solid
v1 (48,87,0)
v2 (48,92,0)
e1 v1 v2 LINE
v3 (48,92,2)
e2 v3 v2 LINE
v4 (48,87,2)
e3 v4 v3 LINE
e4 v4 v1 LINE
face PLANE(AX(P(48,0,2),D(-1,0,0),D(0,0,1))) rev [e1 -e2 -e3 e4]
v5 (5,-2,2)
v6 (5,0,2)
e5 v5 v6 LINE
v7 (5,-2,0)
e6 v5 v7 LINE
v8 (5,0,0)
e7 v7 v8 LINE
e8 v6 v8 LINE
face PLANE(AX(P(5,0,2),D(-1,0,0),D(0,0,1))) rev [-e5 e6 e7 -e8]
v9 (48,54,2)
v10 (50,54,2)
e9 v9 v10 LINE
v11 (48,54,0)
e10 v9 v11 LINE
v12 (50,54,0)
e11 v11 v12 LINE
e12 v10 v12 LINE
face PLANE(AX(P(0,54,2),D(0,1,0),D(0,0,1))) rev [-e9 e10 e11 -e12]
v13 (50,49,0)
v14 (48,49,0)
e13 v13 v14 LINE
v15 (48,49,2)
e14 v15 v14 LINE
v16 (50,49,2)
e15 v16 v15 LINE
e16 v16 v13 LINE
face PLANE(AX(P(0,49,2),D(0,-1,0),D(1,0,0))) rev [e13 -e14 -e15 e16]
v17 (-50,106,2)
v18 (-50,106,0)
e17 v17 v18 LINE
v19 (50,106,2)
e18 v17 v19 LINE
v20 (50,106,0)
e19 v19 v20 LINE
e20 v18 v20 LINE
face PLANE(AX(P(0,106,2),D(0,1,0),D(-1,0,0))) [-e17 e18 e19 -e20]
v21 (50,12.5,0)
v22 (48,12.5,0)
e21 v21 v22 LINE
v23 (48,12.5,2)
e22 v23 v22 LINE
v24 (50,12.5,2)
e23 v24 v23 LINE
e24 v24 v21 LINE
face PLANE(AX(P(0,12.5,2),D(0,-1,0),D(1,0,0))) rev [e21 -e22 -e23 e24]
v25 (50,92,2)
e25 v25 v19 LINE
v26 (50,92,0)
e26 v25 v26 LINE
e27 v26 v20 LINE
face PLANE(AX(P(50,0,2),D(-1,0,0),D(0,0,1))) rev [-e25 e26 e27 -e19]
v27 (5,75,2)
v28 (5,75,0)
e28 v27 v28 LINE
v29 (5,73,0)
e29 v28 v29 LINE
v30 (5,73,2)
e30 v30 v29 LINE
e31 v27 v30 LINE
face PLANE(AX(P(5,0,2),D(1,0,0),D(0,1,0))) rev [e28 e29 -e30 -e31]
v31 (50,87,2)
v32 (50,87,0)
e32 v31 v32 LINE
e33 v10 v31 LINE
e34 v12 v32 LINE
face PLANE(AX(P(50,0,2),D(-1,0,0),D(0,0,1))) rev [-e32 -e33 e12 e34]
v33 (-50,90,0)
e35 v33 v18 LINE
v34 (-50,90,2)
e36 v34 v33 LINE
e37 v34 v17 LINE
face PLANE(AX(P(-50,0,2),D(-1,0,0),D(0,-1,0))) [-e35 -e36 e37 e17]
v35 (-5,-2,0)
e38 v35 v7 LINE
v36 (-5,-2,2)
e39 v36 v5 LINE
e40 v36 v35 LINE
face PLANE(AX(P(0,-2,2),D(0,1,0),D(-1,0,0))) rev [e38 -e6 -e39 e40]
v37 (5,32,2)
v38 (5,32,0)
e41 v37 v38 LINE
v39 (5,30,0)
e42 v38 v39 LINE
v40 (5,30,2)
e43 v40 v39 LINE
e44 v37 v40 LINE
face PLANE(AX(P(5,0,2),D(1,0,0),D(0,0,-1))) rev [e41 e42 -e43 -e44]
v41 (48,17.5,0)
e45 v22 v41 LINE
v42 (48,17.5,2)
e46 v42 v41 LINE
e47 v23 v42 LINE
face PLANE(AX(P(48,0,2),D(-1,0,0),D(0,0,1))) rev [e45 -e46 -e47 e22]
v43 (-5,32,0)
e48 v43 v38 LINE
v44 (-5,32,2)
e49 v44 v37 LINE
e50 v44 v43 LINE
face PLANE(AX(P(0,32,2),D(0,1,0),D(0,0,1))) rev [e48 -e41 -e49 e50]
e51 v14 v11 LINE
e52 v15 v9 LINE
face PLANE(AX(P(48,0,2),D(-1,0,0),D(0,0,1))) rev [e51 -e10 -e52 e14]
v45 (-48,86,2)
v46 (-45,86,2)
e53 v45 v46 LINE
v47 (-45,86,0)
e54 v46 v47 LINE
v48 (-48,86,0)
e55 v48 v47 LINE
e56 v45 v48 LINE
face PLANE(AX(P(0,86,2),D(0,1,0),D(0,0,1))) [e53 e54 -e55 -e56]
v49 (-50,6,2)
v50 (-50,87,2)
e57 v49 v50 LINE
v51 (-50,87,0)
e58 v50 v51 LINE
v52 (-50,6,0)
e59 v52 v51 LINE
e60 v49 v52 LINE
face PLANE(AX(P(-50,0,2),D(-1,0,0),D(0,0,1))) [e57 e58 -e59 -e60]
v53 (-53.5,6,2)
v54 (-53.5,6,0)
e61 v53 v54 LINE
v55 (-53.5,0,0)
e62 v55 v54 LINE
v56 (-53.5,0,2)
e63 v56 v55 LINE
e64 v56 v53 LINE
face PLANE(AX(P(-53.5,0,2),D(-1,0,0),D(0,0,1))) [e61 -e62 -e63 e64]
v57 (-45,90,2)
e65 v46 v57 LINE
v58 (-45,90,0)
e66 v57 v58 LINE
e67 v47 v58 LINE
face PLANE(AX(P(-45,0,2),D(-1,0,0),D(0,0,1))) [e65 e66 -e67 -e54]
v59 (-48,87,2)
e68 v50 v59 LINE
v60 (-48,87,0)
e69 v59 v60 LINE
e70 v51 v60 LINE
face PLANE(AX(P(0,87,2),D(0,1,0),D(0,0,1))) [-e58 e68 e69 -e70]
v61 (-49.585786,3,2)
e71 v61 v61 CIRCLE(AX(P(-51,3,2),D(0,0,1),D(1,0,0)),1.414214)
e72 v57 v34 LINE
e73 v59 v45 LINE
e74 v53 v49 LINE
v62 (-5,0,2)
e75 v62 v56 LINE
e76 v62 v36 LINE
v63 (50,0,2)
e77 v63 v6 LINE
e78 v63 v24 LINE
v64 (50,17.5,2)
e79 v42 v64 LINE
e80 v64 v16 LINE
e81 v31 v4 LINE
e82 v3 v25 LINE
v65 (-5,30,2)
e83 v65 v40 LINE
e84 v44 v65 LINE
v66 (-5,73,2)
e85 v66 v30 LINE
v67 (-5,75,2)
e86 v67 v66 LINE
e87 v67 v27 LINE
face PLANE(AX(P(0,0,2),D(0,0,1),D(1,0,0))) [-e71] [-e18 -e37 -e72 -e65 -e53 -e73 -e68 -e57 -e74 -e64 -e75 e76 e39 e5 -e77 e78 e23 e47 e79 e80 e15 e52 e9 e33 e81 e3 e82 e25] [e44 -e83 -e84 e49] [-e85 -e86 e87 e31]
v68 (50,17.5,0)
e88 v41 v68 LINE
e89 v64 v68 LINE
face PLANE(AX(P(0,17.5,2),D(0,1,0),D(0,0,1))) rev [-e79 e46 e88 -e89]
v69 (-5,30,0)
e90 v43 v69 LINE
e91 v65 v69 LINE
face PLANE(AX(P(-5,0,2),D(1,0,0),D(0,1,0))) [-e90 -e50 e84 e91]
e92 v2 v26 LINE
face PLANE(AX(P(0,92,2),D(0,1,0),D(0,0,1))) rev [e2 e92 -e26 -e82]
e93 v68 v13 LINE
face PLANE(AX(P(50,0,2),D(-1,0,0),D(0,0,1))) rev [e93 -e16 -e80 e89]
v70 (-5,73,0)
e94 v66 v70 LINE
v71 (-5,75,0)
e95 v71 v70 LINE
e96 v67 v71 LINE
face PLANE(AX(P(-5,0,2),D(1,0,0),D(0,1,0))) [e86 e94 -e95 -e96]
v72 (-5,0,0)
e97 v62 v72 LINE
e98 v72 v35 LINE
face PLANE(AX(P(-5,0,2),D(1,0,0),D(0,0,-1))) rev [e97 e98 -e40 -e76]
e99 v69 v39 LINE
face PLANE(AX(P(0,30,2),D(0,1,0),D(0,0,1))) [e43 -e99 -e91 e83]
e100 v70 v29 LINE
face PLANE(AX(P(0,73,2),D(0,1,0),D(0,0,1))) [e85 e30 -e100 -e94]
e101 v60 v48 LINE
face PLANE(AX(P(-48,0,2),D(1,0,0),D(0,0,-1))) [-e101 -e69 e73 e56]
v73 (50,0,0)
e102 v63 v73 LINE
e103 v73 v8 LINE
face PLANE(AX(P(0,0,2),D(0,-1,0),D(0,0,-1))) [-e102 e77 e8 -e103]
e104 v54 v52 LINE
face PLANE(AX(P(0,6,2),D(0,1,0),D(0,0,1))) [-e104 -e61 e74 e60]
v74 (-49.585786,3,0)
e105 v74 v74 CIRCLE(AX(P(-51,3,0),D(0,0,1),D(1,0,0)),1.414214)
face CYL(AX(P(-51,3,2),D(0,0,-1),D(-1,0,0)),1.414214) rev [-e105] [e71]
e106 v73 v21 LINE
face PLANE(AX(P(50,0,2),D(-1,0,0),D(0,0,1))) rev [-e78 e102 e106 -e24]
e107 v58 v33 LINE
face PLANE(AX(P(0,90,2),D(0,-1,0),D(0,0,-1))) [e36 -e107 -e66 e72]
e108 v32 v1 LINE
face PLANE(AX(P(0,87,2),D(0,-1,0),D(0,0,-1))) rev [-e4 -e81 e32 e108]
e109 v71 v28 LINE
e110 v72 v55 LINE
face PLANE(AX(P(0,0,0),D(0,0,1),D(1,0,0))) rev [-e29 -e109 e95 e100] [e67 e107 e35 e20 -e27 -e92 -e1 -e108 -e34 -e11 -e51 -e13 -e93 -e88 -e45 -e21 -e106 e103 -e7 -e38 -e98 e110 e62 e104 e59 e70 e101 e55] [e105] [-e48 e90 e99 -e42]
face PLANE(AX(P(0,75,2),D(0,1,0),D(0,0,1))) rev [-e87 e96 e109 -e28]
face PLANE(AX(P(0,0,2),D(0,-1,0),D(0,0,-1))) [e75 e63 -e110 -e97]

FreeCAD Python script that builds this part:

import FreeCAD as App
import Part
import Sketcher

doc = App.newDocument("Part")
body = doc.addObject("PartDesign::Body", "Body")

# Sketch on XY plane
sketch1 = doc.addObject("Sketcher::SketchObject", "Sketch")
body.addObject(sketch1)
sketch1.AttachmentSupport = (doc.XY_Plane, [""])
sketch1.MapMode = "FlatFace"
sketch1.addGeometry(Part.LineSegment(App.Vector(-53.5, 0, 0), App.Vector(-5, 0, 0)), False)
sketch1.addGeometry(Part.LineSegment(App.Vector(-5, 0, 0), App.Vector(-5, -2, 0)), False)
sketch1.addGeometry(Part.LineSegment(App.Vector(-5, -2, 0), App.Vector(5, -2, 0)), False)
sketch1.addGeometry(Part.LineSegment(App.Vector(5, -2, 0), App.Vector(5, 0, 0)), False)
sketch1.addGeometry(Part.LineSegment(App.Vector(5, 0, 0), App.Vector(50, 0, 0)), False)
sketch1.addGeometry(Part.LineSegment(App.Vector(50, 0, 0), App.Vector(50, 12.5, 0)), False)
sketch1.addGeometry(Part.LineSegment(App.Vector(50, 12.5, 0), App.Vector(48, 12.5, 0)), False)
sketch1.addGeometry(Part.LineSegment(App.Vector(48, 12.5, 0), App.Vector(48, 17.5, 0)), False)
sketch1.addGeometry(Part.LineSegment(App.Vector(48, 17.5, 0), App.Vector(50, 17.5, 0)), False)
sketch1.addGeometry(Part.LineSegment(App.Vector(50, 17.5, 0), App.Vector(50, 49, 0)), False)
sketch1.addGeometry(Part.LineSegment(App.Vector(50, 49, 0), App.Vector(48, 49, 0)), False)
sketch1.addGeometry(Part.LineSegment(App.Vector(48, 49, 0), App.Vector(48, 54, 0)), False)
sketch1.addGeometry(Part.LineSegment(App.Vector(48, 54, 0), App.Vector(50, 54, 0)), False)
sketch1.addGeometry(Part.LineSegment(App.Vector(50, 54, 0), App.Vector(50, 87, 0)), False)
sketch1.addGeometry(Part.LineSegment(App.Vector(50, 87, 0), App.Vector(48, 87, 0)), False)
sketch1.addGeometry(Part.LineSegment(App.Vector(48, 87, 0), App.Vector(48, 92, 0)), False)
sketch1.addGeometry(Part.LineSegment(App.Vector(48, 92, 0), App.Vector(50, 92, 0)), False)
sketch1.addGeometry(Part.LineSegment(App.Vector(50, 92, 0), App.Vector(50, 106, 0)), False)
sketch1.addGeometry(Part.LineSegment(App.Vector(50, 106, 0), App.Vector(-50, 106, 0)), False)
sketch1.addGeometry(Part.LineSegment(App.Vector(-50, 106, 0), App.Vector(-50, 90, 0)), False)
sketch1.addGeometry(Part.LineSegment(App.Vector(-50, 90, 0), App.Vector(-45, 90, 0)), False)
sketch1.addGeometry(Part.LineSegment(App.Vector(-45, 90, 0), App.Vector(-45, 86, 0)), False)
sketch1.addGeometry(Part.LineSegment(App.Vector(-45, 86, 0), App.Vector(-48, 86, 0)), False)
sketch1.addGeometry(Part.LineSegment(App.Vector(-48, 86, 0), App.Vector(-48, 87, 0)), False)
sketch1.addGeometry(Part.LineSegment(App.Vector(-48, 87, 0), App.Vector(-50, 87, 0)), False)
sketch1.addGeometry(Part.LineSegment(App.Vector(-50, 87, 0), App.Vector(-50, 6, 0)), False)
sketch1.addGeometry(Part.LineSegment(App.Vector(-50, 6, 0), App.Vector(-53.5, 6, 0)), False)
sketch1.addGeometry(Part.LineSegment(App.Vector(-53.5, 6, 0), App.Vector(-53.5, 0, 0)), False)
sketch1.addGeometry(Part.Circle(App.Vector(-51, 3, 0), App.Vector(0, 0, 1), 1.4), False)
sketch1.addGeometry(Part.LineSegment(App.Vector(5, 30, 0), App.Vector(-5, 30, 0)), False)
sketch1.addGeometry(Part.LineSegment(App.Vector(-5, 30, 0), App.Vector(-5, 32, 0)), False)
sketch1.addGeometry(Part.LineSegment(App.Vector(-5, 32, 0), App.Vector(5, 32, 0)), False)
sketch1.addGeometry(Part.LineSegment(App.Vector(5, 32, 0), App.Vector(5, 30, 0)), False)
sketch1.addGeometry(Part.LineSegment(App.Vector(5, 73, 0), App.Vector(-5, 73, 0)), False)
sketch1.addGeometry(Part.LineSegment(App.Vector(-5, 73, 0), App.Vector(-5, 75, 0)), False)
sketch1.addGeometry(Part.LineSegment(App.Vector(-5, 75, 0), App.Vector(5, 75, 0)), False)
sketch1.addGeometry(Part.LineSegment(App.Vector(5, 75, 0), App.Vector(5, 73, 0)), False)
sketch1.addConstraint(Sketcher.Constraint("Coincident", 0, 2, 1, 1))
sketch1.addConstraint(Sketcher.Constraint("Coincident", 1, 2, 2, 1))
sketch1.addConstraint(Sketcher.Constraint("Coincident", 2, 2, 3, 1))
sketch1.addConstraint(Sketcher.Constraint("Coincident", 3, 2, 4, 1))
sketch1.addConstraint(Sketcher.Constraint("Coincident", 4, 2, 5, 1))
sketch1.addConstraint(Sketcher.Constraint("Coincident", 5, 2, 6, 1))
sketch1.addConstraint(Sketcher.Constraint("Coincident", 6, 2, 7, 1))
sketch1.addConstraint(Sketcher.Constraint("Coincident", 7, 2, 8, 1))
sketch1.addConstraint(Sketcher.Constraint("Coincident", 8, 2, 9, 1))
sketch1.addConstraint(Sketcher.Constraint("Coincident", 9, 2, 10, 1))
sketch1.addConstraint(Sketcher.Constraint("Coincident", 10, 2, 11, 1))
sketch1.addConstraint(Sketcher.Constraint("Coincident", 11, 2, 12, 1))
sketch1.addConstraint(Sketcher.Constraint("Coincident", 12, 2, 13, 1))
sketch1.addConstraint(Sketcher.Constraint("Coincident", 13, 2, 14, 1))
sketch1.addConstraint(Sketcher.Constraint("Coincident", 14, 2, 15, 1))
sketch1.addConstraint(Sketcher.Constraint("Coincident", 15, 2, 16, 1))
sketch1.addConstraint(Sketcher.Constraint("Coincident", 16, 2, 17, 1))
sketch1.addConstraint(Sketcher.Constraint("Coincident", 17, 2, 18, 1))
sketch1.addConstraint(Sketcher.Constraint("Coincident", 18, 2, 19, 1))
sketch1.addConstraint(Sketcher.Constraint("Coincident", 19, 2, 20, 1))
sketch1.addConstraint(Sketcher.Constraint("Coincident", 20, 2, 21, 1))
sketch1.addConstraint(Sketcher.Constraint("Coincident", 21, 2, 22, 1))
sketch1.addConstraint(Sketcher.Constraint("Coincident", 22, 2, 23, 1))
sketch1.addConstraint(Sketcher.Constraint("Coincident", 23, 2, 24, 1))
sketch1.addConstraint(Sketcher.Constraint("Coincident", 24, 2, 25, 1))
sketch1.addConstraint(Sketcher.Constraint("Coincident", 25, 2, 26, 1))
sketch1.addConstraint(Sketcher.Constraint("Coincident", 26, 2, 27, 1))
sketch1.addConstraint(Sketcher.Constraint("Coincident", 27, 2, 0, 1))
sketch1.addConstraint(Sketcher.Constraint("Coincident", 29, 2, 30, 1))
sketch1.addConstraint(Sketcher.Constraint("Coincident", 30, 2, 31, 1))
sketch1.addConstraint(Sketcher.Constraint("Coincident", 31, 2, 32, 1))
sketch1.addConstraint(Sketcher.Constraint("Coincident", 32, 2, 29, 1))
sketch1.addConstraint(Sketcher.Constraint("Coincident", 33, 2, 34, 1))
sketch1.addConstraint(Sketcher.Constraint("Coincident", 34, 2, 35, 1))
sketch1.addConstraint(Sketcher.Constraint("Coincident", 35, 2, 36, 1))
sketch1.addConstraint(Sketcher.Constraint("Coincident", 36, 2, 33, 1))
sketch1.addConstraint(Sketcher.Constraint("Horizontal", 0))
sketch1.addConstraint(Sketcher.Constraint("Vertical", 1))
sketch1.addConstraint(Sketcher.Constraint("Horizontal", 2))
sketch1.addConstraint(Sketcher.Constraint("Vertical", 3))
sketch1.addConstraint(Sketcher.Constraint("Horizontal", 4))
sketch1.addConstraint(Sketcher.Constraint("Vertical", 5))
sketch1.addConstraint(Sketcher.Constraint("Horizontal", 6))
sketch1.addConstraint(Sketcher.Constraint("Vertical", 7))
sketch1.addConstraint(Sketcher.Constraint("Horizontal", 8))
sketch1.addConstraint(Sketcher.Constraint("Vertical", 9))
sketch1.addConstraint(Sketcher.Constraint("Horizontal", 10))
sketch1.addConstraint(Sketcher.Constraint("Vertical", 11))
sketch1.addConstraint(Sketcher.Constraint("Horizontal", 12))
sketch1.addConstraint(Sketcher.Constraint("Vertical", 13))
sketch1.addConstraint(Sketcher.Constraint("Horizontal", 14))
sketch1.addConstraint(Sketcher.Constraint("Vertical", 15))
sketch1.addConstraint(Sketcher.Constraint("Horizontal", 16))
sketch1.addConstraint(Sketcher.Constraint("Vertical", 17))
sketch1.addConstraint(Sketcher.Constraint("Horizontal", 18))
sketch1.addConstraint(Sketcher.Constraint("Vertical", 19))
sketch1.addConstraint(Sketcher.Constraint("Horizontal", 20))
sketch1.addConstraint(Sketcher.Constraint("Vertical", 21))
sketch1.addConstraint(Sketcher.Constraint("Horizontal", 22))
sketch1.addConstraint(Sketcher.Constraint("Vertical", 23))
sketch1.addConstraint(Sketcher.Constraint("Horizontal", 24))
sketch1.addConstraint(Sketcher.Constraint("Vertical", 25))
sketch1.addConstraint(Sketcher.Constraint("Horizontal", 26))
sketch1.addConstraint(Sketcher.Constraint("Vertical", 27))
sketch1.addConstraint(Sketcher.Constraint("Horizontal", 29))
sketch1.addConstraint(Sketcher.Constraint("Vertical", 30))
sketch1.addConstraint(Sketcher.Constraint("Horizontal", 31))
sketch1.addConstraint(Sketcher.Constraint("Vertical", 32))
sketch1.addConstraint(Sketcher.Constraint("Horizontal", 33))
sketch1.addConstraint(Sketcher.Constraint("Vertical", 34))
sketch1.addConstraint(Sketcher.Constraint("Horizontal", 35))
sketch1.addConstraint(Sketcher.Constraint("Vertical", 36))
sketch1.addConstraint(Sketcher.Constraint("Symmetric", 0, 2, 3, 2, -1, 1))
sketch1.addConstraint(Sketcher.Constraint("Symmetric", 14, 2, 23, 2, -2))
sketch1.addConstraint(Sketcher.Constraint("PointOnObject", 0, 2, -1))
sketch1.addConstraint(Sketcher.Constraint("Vertical", 5, 2, 8, 2))
sketch1.addConstraint(Sketcher.Constraint("Vertical", 7, 2, 10, 2))
sketch1.addConstraint(Sketcher.Constraint("Vertical", 9, 2, 12, 2))
sketch1.addConstraint(Sketcher.Constraint("Vertical", 11, 2, 14, 2))
sketch1.addConstraint(Sketcher.Constraint("Vertical", 13, 2, 16, 2))
sketch1.addConstraint(Sketcher.Constraint("Vertical", 19, 2, 24, 2))
sketch1.addConstraint(Sketcher.Constraint("Vertical", 1, 2, 29, 2))
sketch1.addConstraint(Sketcher.Constraint("Vertical", 3, 2, 31, 2))
sketch1.addConstraint(Sketcher.Constraint("Vertical", 30, 2, 33, 2))
sketch1.addConstraint(Sketcher.Constraint("Vertical", 32, 2, 35, 2))
sketch1.addConstraint(Sketcher.Constraint("Equal", 16, 24))
sketch1.addConstraint(Sketcher.Constraint("Equal", 24, 1))
sketch1.addConstraint(Sketcher.Constraint("Equal", 20, 7))
sketch1.addConstraint(Sketcher.Constraint("Equal", 7, 11))
sketch1.addConstraint(Sketcher.Constraint("Equal", 11, 15))
sketch1.addConstraint(Sketcher.Constraint("Equal", 3, 30))
sketch1.addConstraint(Sketcher.Constraint("Equal", 32, 34))
sketch1.addConstraint(Sketcher.Constraint("DistanceX", 2, 1, 2, 2, 10.0))
sketch1.addConstraint(Sketcher.Constraint("DistanceX", 4, 1, 4, 2, 45.0))
sketch1.addConstraint(Sketcher.Constraint("DistanceX", 6, 2, 6, 1, 2.0))
sketch1.addConstraint(Sketcher.Constraint("DistanceX", 20, 1, 20, 2, 5.0))
sketch1.addConstraint(Sketcher.Constraint("DistanceY", 13, 1, 13, 2, 33.0))
sketch1.addConstraint(Sketcher.Constraint("DistanceY", 17, 1, 17, 2, 14.0))
sketch1.addConstraint(Sketcher.Constraint("DistanceY", 19, 2, 19, 1, 16.0))
sketch1.addConstraint(Sketcher.Constraint("DistanceY", 21, 2, 21, 1, 4.0))
sketch1.addConstraint(Sketcher.Constraint("DistanceY", 25, 2, 25, 1, 81.0))
sketch1.addConstraint(Sketcher.Constraint("DistanceY", 27, 2, 27, 1, 6.0))
sketch1.addConstraint(Sketcher.Constraint("DistanceX", 0, 1, 0, 2, 48.5))
sketch1.addConstraint(Sketcher.Constraint("DistanceY", 5, 1, 5, 2, 12.5))
sketch1.addConstraint(Sketcher.Constraint("DistanceX", 28, 3, -1, 1, 51.0))
sketch1.addConstraint(Sketcher.Constraint("DistanceY", -1, 1, 28, 3, 3.0))
sketch1.addConstraint(Sketcher.Constraint("DistanceY", -1, 1, 29, 2, 30.0))
sketch1.addConstraint(Sketcher.Constraint("DistanceY", -1, 1, 33, 2, 73.0))
sketch1.addConstraint(Sketcher.Constraint("Diameter", 28, 2.828427))
pad1 = doc.addObject("PartDesign::Pad", "Pad")
body.addObject(pad1)
pad1.Profile = sketch1
pad1.Length = 2

doc.recompute()
